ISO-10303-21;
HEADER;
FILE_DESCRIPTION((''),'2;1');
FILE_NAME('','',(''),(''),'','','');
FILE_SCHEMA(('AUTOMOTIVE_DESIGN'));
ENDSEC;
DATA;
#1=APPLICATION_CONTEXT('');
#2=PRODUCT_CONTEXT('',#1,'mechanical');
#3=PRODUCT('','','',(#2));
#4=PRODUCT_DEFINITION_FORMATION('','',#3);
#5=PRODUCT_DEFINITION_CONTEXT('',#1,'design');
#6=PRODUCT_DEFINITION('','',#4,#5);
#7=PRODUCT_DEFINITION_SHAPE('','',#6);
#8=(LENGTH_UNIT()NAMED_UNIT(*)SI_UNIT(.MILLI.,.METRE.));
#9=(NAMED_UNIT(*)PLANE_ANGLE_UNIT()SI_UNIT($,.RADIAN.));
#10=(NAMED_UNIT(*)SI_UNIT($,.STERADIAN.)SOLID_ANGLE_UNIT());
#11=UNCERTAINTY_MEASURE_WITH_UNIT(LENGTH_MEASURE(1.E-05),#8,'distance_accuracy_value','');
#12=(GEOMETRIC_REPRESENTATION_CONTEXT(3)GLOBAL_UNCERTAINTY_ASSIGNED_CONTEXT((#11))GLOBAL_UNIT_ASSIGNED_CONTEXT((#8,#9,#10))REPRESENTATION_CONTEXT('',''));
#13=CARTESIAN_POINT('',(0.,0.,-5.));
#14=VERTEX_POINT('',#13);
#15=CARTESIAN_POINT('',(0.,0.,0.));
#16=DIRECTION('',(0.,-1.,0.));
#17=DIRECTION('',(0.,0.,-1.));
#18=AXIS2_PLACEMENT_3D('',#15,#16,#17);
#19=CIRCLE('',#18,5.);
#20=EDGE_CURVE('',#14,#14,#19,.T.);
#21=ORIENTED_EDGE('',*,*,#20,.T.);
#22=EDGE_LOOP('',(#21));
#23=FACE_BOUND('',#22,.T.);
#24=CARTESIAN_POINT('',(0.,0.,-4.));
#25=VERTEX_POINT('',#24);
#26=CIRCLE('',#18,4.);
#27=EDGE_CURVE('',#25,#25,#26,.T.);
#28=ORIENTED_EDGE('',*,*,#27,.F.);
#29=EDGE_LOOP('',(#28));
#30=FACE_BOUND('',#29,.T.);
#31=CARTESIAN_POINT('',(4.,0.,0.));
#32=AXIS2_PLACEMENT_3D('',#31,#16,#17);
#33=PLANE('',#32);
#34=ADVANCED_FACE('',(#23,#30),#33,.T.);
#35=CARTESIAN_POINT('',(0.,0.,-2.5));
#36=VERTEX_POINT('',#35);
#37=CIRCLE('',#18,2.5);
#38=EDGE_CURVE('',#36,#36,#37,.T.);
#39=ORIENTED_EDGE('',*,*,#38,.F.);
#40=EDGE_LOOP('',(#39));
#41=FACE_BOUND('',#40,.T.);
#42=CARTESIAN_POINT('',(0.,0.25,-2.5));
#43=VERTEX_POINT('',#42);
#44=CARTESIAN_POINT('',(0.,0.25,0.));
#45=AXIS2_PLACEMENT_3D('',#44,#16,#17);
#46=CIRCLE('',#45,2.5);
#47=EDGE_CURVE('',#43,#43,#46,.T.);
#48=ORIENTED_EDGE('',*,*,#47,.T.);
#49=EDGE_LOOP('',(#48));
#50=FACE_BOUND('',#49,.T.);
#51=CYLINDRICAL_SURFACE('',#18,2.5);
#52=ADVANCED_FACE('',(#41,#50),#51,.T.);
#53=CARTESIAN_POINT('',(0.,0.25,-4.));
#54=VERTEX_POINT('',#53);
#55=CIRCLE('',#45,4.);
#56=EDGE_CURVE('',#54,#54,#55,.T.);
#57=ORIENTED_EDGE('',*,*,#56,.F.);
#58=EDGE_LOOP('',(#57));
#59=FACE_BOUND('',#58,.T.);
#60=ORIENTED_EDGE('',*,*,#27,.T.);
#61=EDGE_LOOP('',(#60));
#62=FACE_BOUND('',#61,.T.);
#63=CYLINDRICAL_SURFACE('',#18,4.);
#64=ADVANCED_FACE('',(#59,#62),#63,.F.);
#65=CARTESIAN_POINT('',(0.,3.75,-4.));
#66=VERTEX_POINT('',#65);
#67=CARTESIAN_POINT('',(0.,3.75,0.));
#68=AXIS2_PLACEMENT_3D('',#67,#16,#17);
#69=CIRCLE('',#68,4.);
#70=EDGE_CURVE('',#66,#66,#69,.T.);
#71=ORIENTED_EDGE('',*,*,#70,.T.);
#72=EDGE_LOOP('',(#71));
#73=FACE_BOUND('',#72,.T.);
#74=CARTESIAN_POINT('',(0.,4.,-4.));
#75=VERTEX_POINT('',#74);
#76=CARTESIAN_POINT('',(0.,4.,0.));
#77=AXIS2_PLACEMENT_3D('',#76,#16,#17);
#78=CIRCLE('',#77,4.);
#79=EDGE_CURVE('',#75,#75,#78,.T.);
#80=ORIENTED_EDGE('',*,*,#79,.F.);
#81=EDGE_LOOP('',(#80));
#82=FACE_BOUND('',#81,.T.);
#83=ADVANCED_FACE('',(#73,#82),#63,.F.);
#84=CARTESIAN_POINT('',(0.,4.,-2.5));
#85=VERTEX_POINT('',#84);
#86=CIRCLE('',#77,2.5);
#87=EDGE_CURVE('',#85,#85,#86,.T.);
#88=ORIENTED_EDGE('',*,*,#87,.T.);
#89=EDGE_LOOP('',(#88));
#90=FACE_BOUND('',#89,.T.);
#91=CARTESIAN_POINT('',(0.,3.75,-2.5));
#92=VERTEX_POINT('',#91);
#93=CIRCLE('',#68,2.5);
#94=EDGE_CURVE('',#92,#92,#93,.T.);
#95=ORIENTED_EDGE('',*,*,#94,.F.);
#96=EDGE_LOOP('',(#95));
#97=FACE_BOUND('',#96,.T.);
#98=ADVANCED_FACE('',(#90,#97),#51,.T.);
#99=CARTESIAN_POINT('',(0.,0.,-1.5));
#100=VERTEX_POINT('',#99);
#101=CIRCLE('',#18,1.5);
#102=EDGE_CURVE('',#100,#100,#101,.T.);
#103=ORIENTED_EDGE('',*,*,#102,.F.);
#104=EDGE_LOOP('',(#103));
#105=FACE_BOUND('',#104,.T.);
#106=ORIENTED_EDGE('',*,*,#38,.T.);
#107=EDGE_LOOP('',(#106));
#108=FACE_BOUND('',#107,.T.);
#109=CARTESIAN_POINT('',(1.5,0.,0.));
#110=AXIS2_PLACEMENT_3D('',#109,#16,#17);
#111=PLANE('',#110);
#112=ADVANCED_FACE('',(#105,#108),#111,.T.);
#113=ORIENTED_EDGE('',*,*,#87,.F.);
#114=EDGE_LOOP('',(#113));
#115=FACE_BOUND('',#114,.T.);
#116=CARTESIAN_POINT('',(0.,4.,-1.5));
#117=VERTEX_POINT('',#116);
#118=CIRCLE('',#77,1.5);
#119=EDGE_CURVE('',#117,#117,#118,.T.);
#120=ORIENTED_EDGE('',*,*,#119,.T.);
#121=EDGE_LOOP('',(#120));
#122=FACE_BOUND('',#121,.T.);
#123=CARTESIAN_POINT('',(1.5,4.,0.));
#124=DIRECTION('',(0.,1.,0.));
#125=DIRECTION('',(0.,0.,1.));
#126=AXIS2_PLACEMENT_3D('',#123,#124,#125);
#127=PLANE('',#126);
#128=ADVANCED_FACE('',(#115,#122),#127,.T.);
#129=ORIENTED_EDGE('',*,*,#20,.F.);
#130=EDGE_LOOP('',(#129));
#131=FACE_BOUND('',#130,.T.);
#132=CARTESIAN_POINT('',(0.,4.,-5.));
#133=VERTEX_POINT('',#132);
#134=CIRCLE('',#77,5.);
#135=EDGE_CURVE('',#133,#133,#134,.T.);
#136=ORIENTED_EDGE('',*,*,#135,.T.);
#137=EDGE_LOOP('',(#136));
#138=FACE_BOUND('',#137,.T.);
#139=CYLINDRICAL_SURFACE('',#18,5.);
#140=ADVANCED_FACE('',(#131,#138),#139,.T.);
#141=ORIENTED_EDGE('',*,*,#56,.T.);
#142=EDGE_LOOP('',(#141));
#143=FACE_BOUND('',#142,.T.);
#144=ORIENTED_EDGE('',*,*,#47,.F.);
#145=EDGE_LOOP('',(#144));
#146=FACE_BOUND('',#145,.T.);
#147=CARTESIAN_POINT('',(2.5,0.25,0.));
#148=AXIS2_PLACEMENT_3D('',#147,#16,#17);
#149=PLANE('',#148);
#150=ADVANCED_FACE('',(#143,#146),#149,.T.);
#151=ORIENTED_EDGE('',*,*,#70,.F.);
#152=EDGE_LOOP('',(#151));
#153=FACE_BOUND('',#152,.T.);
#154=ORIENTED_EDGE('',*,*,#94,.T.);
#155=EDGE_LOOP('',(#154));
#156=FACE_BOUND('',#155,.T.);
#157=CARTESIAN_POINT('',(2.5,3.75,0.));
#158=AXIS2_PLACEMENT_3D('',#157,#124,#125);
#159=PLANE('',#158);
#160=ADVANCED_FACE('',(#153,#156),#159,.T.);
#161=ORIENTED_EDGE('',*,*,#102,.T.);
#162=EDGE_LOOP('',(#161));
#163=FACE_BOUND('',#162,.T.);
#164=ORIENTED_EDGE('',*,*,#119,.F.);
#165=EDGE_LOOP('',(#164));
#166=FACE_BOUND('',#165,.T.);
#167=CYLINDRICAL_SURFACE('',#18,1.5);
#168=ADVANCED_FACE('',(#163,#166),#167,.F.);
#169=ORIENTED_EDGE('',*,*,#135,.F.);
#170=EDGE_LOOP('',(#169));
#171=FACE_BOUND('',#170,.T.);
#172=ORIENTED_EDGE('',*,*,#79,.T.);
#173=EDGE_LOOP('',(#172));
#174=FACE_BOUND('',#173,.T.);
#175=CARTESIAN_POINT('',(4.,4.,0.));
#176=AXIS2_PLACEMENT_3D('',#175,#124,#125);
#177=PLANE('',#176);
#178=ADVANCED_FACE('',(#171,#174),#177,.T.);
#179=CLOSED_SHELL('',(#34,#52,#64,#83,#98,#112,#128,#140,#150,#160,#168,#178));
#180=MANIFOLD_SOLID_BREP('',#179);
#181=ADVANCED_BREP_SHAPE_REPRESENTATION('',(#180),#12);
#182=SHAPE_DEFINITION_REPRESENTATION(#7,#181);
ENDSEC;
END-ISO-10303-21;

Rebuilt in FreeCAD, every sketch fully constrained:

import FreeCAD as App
import Part
import Sketcher

V = App.Vector
Q = App.Units.Quantity


def add_polygon(sketch, points):
    """Adds a closed chain of lines whose ends are joined by coincident constraints."""
    first, n = sketch.GeometryCount, len(points)
    for a, b in zip(points, points[1:] + points[:1]):
        sketch.addGeometry(Part.LineSegment(App.Vector(*a, 0), App.Vector(*b, 0)), False)
    for i in range(n):
        sketch.addConstraint(Sketcher.Constraint("Coincident", first + i, 2, first + (i + 1) % n, 1))

doc = App.newDocument("Part")
body = doc.addObject("PartDesign::Body", "Body")

sketch1 = body.newObject("Sketcher::SketchObject", "Sketch")
sketch1.AttachmentSupport = (doc.getObject("XY_Plane"), [""])
sketch1.MapMode = "FlatFace"
add_polygon(sketch1, [(1.5, 4), (1.5, 0), (2.5, 0), (2.5, 0.25), (4, 0.25), (4, 0), (5, 0), (5, 4), (4, 4), (4, 3.75), (2.5, 3.75), (2.5, 4)])
sketch1.addConstraint([
    Sketcher.Constraint("Vertical", 0),
    Sketcher.Constraint("Horizontal", 1),
    Sketcher.Constraint("Vertical", 2),
    Sketcher.Constraint("Horizontal", 3),
    Sketcher.Constraint("Vertical", 4),
    Sketcher.Constraint("Horizontal", 5),
    Sketcher.Constraint("Vertical", 6),
    Sketcher.Constraint("Horizontal", 7),
    Sketcher.Constraint("Vertical", 8),
    Sketcher.Constraint("Horizontal", 9),
    Sketcher.Constraint("Vertical", 10),
    Sketcher.Constraint("Horizontal", 11),
    Sketcher.Constraint("PointOnObject", 0, 2, -1),
    Sketcher.Constraint("PointOnObject", 4, 2, -1),
    Sketcher.Constraint("Horizontal", 7, 2, 10, 2),
    Sketcher.Constraint("Vertical", 4, 2, 7, 2),
    Sketcher.Constraint("Vertical", 2, 2, 9, 2),
    Sketcher.Constraint("Equal", 1, 5),
    Sketcher.Constraint("Equal", 4, 8),
    Sketcher.Constraint("DistanceX", 1, 1, 1, 2, Q("1 mm")),
    Sketcher.Constraint("DistanceY", 0, 2, 0, 1, Q("4 mm")),
    Sketcher.Constraint("DistanceX", 3, 1, 3, 2, Q("1.5 mm")),
    Sketcher.Constraint("DistanceX", -1, 1, 3, 2, Q("4 mm")),
    Sketcher.Constraint("DistanceY", 2, 1, 2, 2, Q("0.25 mm")),
])
revolution = body.newObject("PartDesign::Revolution", "Revolution")
revolution.Profile = sketch1
revolution.ReferenceAxis = (sketch1, ["V_Axis"])
revolution.Angle = 360

doc.recompute()
